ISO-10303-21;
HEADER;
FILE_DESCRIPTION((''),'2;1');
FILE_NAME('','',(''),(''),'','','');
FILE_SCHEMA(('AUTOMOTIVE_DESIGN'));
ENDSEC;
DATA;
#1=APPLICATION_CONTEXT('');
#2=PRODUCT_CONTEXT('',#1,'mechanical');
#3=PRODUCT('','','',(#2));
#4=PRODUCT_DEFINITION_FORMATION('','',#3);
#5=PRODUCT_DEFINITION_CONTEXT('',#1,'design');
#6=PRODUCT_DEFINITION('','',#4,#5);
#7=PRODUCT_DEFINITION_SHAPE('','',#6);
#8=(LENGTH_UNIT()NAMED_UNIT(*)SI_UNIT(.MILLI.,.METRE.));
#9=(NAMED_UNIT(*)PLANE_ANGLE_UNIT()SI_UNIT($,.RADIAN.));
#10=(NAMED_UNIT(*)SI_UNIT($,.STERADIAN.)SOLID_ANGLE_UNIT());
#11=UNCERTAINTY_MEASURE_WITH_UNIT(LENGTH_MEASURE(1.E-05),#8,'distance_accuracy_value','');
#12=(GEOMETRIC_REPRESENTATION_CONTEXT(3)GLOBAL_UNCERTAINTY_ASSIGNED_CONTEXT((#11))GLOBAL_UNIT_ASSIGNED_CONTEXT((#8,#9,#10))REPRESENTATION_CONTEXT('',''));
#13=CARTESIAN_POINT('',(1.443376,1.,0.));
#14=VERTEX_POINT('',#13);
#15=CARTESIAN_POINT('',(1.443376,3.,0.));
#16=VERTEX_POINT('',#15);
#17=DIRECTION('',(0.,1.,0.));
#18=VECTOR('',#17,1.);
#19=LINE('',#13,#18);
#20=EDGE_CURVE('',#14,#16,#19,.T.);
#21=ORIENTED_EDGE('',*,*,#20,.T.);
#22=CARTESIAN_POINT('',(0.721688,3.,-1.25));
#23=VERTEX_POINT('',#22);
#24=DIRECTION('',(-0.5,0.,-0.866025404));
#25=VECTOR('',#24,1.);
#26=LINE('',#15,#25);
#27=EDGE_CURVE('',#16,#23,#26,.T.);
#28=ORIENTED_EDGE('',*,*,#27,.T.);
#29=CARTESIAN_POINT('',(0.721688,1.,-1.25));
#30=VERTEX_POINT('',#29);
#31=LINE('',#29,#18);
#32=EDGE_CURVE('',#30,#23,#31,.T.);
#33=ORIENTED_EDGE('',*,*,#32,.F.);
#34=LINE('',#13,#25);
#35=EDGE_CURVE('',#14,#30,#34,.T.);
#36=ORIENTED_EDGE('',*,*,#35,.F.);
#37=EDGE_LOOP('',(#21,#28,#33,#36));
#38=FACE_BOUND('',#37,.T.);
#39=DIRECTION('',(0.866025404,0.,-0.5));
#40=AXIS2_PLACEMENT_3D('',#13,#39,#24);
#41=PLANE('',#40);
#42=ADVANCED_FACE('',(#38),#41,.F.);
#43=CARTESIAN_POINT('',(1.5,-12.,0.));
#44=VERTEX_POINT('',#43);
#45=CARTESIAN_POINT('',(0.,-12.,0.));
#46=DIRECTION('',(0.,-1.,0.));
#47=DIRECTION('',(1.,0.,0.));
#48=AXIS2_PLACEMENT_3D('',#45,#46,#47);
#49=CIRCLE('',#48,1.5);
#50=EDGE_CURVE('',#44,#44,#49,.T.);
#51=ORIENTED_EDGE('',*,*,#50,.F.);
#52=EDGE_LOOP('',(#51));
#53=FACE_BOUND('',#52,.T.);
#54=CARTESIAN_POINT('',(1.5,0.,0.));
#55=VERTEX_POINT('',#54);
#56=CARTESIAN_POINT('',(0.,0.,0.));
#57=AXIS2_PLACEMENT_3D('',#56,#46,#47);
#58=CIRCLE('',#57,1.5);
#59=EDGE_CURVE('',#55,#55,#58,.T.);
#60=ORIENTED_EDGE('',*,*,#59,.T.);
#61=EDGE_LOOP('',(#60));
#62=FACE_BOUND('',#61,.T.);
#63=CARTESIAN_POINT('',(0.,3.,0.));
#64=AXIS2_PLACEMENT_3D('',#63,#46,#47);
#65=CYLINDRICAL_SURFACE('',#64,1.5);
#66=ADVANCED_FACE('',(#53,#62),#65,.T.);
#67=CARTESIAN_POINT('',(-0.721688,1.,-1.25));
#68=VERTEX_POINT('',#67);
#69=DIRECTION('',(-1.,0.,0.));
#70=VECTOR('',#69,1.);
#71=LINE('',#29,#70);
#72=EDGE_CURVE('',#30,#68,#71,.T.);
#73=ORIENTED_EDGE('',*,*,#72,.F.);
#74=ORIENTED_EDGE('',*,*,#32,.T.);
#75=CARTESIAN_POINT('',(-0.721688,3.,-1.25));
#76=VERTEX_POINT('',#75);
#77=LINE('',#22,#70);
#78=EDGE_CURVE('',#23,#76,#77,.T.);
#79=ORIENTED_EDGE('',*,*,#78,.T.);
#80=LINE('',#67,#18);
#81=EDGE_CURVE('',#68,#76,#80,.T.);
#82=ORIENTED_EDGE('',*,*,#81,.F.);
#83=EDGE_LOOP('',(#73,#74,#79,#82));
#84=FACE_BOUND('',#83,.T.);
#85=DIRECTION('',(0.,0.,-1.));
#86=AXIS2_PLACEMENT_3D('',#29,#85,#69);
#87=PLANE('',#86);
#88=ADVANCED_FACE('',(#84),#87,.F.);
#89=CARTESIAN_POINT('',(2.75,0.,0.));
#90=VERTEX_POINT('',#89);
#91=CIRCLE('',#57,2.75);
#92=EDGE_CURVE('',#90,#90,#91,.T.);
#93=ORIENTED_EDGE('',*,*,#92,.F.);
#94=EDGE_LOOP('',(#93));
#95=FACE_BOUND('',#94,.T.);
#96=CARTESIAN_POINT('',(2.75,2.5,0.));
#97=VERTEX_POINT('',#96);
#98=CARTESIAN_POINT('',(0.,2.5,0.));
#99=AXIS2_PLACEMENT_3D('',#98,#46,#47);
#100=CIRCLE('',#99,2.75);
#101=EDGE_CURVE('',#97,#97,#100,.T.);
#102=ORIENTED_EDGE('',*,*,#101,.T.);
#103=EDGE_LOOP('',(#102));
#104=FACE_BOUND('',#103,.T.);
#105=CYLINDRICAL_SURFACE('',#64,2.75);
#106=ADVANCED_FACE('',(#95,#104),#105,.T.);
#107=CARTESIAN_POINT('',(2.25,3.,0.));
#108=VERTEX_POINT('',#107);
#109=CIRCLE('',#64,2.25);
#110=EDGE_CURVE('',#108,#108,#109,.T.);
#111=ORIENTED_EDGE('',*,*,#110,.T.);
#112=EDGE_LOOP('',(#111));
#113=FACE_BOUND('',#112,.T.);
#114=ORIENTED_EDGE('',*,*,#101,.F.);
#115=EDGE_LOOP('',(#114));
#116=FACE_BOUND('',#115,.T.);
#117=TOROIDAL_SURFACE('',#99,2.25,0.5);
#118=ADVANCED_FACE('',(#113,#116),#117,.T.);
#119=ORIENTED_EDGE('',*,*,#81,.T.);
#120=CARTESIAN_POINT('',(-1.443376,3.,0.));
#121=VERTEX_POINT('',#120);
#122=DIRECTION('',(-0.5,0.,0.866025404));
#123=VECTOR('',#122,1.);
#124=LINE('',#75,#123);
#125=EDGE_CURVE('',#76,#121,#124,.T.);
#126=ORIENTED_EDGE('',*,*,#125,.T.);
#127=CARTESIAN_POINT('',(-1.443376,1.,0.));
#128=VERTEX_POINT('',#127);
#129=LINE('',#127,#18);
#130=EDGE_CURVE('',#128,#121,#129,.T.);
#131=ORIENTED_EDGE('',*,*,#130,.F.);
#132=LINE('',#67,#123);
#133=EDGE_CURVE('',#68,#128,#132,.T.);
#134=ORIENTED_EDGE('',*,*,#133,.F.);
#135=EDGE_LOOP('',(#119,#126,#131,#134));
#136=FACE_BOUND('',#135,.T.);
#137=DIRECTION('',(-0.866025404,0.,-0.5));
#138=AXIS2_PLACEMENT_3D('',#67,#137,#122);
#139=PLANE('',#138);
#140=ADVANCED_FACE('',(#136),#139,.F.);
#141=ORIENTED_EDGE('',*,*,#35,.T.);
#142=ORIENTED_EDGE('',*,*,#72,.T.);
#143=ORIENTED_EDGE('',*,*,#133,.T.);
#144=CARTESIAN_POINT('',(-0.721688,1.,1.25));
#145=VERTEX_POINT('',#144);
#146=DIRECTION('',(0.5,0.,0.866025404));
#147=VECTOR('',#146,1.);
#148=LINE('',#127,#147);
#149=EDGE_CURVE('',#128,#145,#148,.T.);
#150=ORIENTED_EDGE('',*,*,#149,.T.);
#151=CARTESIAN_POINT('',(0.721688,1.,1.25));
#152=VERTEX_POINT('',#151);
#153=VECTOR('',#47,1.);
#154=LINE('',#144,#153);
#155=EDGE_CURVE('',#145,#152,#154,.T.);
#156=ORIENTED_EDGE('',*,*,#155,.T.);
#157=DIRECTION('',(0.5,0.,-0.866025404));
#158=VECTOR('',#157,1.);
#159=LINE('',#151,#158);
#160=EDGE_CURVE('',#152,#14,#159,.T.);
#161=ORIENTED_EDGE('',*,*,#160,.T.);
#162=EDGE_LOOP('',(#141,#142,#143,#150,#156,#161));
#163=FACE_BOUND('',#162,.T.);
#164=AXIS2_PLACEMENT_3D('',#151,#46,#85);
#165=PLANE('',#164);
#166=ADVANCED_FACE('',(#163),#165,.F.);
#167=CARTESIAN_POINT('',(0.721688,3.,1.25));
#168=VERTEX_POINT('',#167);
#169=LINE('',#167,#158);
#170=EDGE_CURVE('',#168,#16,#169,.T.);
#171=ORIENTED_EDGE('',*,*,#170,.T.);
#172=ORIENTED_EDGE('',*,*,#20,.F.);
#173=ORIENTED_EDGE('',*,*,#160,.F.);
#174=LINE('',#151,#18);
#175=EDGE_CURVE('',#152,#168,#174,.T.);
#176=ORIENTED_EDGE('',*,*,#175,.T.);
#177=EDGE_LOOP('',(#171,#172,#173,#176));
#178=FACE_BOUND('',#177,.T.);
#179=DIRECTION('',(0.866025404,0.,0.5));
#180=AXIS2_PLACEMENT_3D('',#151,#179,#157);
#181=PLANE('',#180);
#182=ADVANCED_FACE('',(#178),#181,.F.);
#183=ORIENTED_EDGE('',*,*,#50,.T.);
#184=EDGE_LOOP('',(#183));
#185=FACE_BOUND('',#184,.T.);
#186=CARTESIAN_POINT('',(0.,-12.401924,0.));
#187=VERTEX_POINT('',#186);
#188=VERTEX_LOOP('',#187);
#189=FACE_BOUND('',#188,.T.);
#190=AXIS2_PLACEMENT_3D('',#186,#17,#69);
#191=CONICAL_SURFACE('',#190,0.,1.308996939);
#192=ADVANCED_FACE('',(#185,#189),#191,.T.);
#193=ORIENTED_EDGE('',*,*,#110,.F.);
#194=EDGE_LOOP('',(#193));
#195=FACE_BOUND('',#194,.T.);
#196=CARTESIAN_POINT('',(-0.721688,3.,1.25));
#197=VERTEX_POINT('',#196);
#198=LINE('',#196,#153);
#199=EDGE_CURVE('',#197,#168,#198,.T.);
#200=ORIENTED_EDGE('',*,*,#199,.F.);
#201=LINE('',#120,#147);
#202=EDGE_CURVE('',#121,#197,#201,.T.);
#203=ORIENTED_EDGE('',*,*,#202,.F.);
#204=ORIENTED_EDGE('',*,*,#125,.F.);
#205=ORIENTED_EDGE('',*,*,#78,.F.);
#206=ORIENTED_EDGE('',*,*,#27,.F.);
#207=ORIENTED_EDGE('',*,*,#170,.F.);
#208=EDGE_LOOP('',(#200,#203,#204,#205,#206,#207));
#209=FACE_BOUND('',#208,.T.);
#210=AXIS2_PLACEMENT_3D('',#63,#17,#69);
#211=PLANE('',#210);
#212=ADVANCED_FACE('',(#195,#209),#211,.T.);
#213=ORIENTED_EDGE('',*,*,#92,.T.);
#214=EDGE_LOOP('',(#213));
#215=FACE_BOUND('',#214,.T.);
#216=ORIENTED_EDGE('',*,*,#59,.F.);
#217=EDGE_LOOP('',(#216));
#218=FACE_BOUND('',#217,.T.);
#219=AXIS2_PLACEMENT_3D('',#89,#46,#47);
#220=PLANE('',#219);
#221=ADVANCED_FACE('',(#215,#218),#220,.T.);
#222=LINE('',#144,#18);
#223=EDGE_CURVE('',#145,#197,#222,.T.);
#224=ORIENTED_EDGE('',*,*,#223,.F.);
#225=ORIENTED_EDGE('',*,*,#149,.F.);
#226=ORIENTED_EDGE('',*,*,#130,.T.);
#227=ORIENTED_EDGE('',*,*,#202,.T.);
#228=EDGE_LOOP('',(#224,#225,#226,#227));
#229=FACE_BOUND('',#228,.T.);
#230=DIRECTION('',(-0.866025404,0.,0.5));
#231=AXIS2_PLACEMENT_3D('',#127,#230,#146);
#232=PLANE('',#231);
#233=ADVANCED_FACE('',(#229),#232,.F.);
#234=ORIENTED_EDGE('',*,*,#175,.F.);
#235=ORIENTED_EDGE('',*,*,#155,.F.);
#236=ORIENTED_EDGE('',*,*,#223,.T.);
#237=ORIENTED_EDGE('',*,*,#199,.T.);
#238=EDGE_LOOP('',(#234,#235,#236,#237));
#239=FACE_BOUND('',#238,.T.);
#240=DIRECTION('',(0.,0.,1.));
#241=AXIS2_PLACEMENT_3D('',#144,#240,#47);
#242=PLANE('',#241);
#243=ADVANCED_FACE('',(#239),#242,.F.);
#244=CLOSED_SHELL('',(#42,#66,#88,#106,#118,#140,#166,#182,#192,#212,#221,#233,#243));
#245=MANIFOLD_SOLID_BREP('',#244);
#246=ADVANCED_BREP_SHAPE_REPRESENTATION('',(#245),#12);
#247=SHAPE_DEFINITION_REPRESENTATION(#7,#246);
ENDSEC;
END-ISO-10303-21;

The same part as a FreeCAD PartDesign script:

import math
import FreeCAD as App
import Part
import Sketcher

V = App.Vector
Q = App.Units.Quantity


def add_polygon(sketch, points):
    """Adds a closed chain of lines whose ends are joined by coincident constraints."""
    first, n = sketch.GeometryCount, len(points)
    for a, b in zip(points, points[1:] + points[:1]):
        sketch.addGeometry(Part.LineSegment(App.Vector(*a, 0), App.Vector(*b, 0)), False)
    for i in range(n):
        sketch.addConstraint(Sketcher.Constraint("Coincident", first + i, 2, first + (i + 1) % n, 1))

doc = App.newDocument("Part")
body = doc.addObject("PartDesign::Body", "Body")

# Sketch on XY plane
sketch1 = body.newObject("Sketcher::SketchObject", "Sketch")
sketch1.AttachmentSupport = (doc.getObject("XY_Plane"), [""])
sketch1.MapMode = "FlatFace"
sketch1.addGeometry([
    Part.LineSegment(V(0, 3, 0), V(0, -12.4, 0)),  # 0
    Part.LineSegment(V(0, -12.4, 0), V(1.5, -12, 0)),  # 1
    Part.LineSegment(V(1.5, -12, 0), V(1.5, 0, 0)),  # 2
    Part.LineSegment(V(1.5, 0, 0), V(2.75, 0, 0)),  # 3
    Part.LineSegment(V(2.75, 0, 0), V(2.75, 2.5, 0)),  # 4
    Part.ArcOfCircle(Part.Circle(V(2.25, 2.5, 0), V(0, 0, 1), 0.5), math.radians(0), math.radians(90)),  # 5
    Part.LineSegment(V(2.25, 3, 0), V(0, 3, 0)),  # 6
], False)
sketch1.addConstraint([
    Sketcher.Constraint("Coincident", 0, 2, 1, 1),
    Sketcher.Constraint("Coincident", 1, 2, 2, 1),
    Sketcher.Constraint("Coincident", 2, 2, 3, 1),
    Sketcher.Constraint("Coincident", 3, 2, 4, 1),
    Sketcher.Constraint("Tangent", 4, 2, 5, 1),
    Sketcher.Constraint("Tangent", 5, 2, 6, 1),
    Sketcher.Constraint("Coincident", 6, 2, 0, 1),
    Sketcher.Constraint("Vertical", 0),
    Sketcher.Constraint("Vertical", 2),
    Sketcher.Constraint("Horizontal", 3),
    Sketcher.Constraint("Vertical", 4),
    Sketcher.Constraint("Horizontal", 6),
    Sketcher.Constraint("PointOnObject", 0, 2, -2),
    Sketcher.Constraint("PointOnObject", 2, 2, -1),
    Sketcher.Constraint("Radius", 5, 0.5),
    Sketcher.Constraint("DistanceY", 2, 1, 2, 2, 12.0),
    Sketcher.Constraint("Angle", 1, Q("15 deg")),
    Sketcher.Constraint("DistanceY", 4, 1, 4, 2, 2.5),
    Sketcher.Constraint("DistanceX", 3, 1, 3, 2, 1.25),
    Sketcher.Constraint("DistanceX", 6, 2, 6, 1, 2.25),
])
revolution = body.newObject("PartDesign::Revolution", "Revolution")
revolution.Profile = sketch1
revolution.ReferenceAxis = (sketch1, ["V_Axis"])
revolution.Angle = 360

# Sketch on XZ plane
sketch2 = body.newObject("Sketcher::SketchObject", "Sketch001")
sketch2.AttachmentSupport = (doc.getObject("XZ_Plane"), [""])
sketch2.MapMode = "FlatFace"
sketch2.AttachmentOffset = App.Placement(V(0, 0, -3), App.Rotation())
add_polygon(sketch2, [(1.4, 0), (0.7, -1.2), (-0.7, -1.2), (-1.4, 0), (-0.7, 1.2), (0.7, 1.2)])  # lines 0-5
sketch2.addConstraint([
    Sketcher.Constraint("Horizontal", 1),
    Sketcher.Constraint("Horizontal", 4),
    Sketcher.Constraint("Symmetric", 0, 2, 3, 2, -1, 1),
    Sketcher.Constraint("Symmetric", 2, 2, 5, 2, -1, 1),
    Sketcher.Constraint("PointOnObject", 2, 2, -1),
    Sketcher.Constraint("Parallel", 2, 5),
    Sketcher.Constraint("Vertical", 1, 2, 3, 2),
    Sketcher.Constraint("Angle", 0, Q("-120 deg")),
    Sketcher.Constraint("DistanceY", 1, 2, 3, 2, 2.5),
    Sketcher.Constraint("DistanceX", 1, 2, 1, 1, 1.443376),
])
pocket1 = body.newObject("PartDesign::Pocket", "Pocket")
pocket1.Profile = sketch2
pocket1.Length = 2
pocket1.Reversed = True

doc.recompute()
